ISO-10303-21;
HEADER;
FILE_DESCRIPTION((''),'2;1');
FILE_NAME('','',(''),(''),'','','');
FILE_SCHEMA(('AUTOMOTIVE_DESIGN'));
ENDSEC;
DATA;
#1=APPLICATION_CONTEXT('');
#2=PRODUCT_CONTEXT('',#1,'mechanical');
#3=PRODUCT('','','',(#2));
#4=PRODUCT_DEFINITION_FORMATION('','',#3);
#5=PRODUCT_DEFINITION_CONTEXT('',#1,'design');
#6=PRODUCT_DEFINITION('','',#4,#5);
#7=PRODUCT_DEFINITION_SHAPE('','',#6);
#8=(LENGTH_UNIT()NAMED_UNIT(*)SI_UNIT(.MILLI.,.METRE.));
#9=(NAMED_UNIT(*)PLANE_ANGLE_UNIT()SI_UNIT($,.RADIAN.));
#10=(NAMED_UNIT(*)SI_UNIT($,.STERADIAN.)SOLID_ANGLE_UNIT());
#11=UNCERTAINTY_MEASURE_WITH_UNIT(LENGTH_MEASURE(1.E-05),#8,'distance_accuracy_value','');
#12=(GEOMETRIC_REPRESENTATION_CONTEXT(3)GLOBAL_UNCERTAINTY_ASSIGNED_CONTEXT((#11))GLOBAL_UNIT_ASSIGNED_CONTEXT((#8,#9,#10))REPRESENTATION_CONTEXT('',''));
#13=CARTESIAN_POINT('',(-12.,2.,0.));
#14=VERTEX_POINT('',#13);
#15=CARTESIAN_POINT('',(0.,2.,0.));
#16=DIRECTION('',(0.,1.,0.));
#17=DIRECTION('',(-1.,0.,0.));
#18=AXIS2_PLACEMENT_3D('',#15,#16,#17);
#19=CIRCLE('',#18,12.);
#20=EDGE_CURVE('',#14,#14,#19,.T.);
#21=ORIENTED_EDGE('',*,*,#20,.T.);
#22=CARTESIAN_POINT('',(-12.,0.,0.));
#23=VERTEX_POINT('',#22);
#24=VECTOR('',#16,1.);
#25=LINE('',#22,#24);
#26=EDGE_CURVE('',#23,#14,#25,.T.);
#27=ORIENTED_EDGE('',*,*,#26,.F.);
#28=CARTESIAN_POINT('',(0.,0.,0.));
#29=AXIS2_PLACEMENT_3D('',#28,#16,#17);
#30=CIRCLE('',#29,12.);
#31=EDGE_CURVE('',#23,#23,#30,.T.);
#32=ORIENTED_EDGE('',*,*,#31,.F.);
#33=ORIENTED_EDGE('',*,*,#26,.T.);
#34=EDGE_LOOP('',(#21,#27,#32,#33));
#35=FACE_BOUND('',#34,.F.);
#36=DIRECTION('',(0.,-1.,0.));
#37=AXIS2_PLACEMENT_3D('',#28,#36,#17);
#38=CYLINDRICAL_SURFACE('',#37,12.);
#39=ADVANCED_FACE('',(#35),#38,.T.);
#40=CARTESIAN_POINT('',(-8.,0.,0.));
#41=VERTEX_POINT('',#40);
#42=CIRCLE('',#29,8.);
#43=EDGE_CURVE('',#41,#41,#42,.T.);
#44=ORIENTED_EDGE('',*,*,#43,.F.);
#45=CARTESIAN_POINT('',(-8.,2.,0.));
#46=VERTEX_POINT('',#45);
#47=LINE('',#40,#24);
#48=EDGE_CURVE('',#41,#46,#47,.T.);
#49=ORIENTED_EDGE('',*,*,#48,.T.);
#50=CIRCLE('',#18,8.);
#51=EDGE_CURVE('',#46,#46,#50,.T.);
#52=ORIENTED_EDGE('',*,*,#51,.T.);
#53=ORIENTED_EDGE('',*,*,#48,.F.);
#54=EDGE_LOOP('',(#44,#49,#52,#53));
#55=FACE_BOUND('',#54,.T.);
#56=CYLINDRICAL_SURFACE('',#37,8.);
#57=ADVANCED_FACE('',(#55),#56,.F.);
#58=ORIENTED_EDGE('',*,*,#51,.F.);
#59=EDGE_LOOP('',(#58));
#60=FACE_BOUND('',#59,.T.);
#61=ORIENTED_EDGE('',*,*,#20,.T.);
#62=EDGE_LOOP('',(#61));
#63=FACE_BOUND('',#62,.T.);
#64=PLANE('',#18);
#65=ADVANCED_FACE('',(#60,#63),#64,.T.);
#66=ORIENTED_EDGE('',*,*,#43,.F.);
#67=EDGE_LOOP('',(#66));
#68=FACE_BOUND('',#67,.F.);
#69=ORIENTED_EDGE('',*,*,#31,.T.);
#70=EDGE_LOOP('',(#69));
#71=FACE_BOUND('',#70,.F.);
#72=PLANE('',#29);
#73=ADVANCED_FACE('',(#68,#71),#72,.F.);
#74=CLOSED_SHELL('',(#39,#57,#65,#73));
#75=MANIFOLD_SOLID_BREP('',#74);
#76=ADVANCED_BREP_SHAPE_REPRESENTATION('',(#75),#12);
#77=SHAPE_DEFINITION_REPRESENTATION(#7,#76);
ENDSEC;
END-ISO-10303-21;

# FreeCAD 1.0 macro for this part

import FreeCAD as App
import Part
import Sketcher

V = App.Vector

doc = App.newDocument("Part")
params = doc.addObject("Spreadsheet::Sheet", "Params")
for row, (alias, value) in enumerate([
    ("sketch1_diameter", "24 mm"),
    ("sketch1_diameter2", "16 mm"),
    ("pad1_length", "2 mm"),
], start=1):
    params.set(f"A{row}", alias)
    params.set(f"B{row}", "=" + value)
    params.setAlias(f"B{row}", alias)

body = doc.addObject("PartDesign::Body", "Body")

# Sketch on XZ plane
sketch1 = body.newObject("Sketcher::SketchObject", "Sketch")
sketch1.AttachmentSupport = (doc.getObject("XZ_Plane"), [""])
sketch1.MapMode = "FlatFace"
sketch1.addGeometry(Part.Circle(V(0, 0, 0), V(0, 0, 1), 12), False)
sketch1.addGeometry(Part.Circle(V(0, 0, 0), V(0, 0, 1), 8), False)
sketch1.addConstraint(Sketcher.Constraint("Coincident", 0, 3, -1, 1))
sketch1.addConstraint(Sketcher.Constraint("Coincident", 1, 3, -1, 1))
sketch1.addConstraint(Sketcher.Constraint("Diameter", 0, 24.0))
sketch1.addConstraint(Sketcher.Constraint("Diameter", 1, 16.0))
sketch1.setExpression("Constraints[2]", "Params.sketch1_diameter")
sketch1.setExpression("Constraints[3]", "Params.sketch1_diameter2")
pad1 = body.newObject("PartDesign::Pad", "Pad")
pad1.Profile = sketch1
pad1.setExpression("Length", "Params.pad1_length")
pad1.Reversed = True

doc.recompute()
